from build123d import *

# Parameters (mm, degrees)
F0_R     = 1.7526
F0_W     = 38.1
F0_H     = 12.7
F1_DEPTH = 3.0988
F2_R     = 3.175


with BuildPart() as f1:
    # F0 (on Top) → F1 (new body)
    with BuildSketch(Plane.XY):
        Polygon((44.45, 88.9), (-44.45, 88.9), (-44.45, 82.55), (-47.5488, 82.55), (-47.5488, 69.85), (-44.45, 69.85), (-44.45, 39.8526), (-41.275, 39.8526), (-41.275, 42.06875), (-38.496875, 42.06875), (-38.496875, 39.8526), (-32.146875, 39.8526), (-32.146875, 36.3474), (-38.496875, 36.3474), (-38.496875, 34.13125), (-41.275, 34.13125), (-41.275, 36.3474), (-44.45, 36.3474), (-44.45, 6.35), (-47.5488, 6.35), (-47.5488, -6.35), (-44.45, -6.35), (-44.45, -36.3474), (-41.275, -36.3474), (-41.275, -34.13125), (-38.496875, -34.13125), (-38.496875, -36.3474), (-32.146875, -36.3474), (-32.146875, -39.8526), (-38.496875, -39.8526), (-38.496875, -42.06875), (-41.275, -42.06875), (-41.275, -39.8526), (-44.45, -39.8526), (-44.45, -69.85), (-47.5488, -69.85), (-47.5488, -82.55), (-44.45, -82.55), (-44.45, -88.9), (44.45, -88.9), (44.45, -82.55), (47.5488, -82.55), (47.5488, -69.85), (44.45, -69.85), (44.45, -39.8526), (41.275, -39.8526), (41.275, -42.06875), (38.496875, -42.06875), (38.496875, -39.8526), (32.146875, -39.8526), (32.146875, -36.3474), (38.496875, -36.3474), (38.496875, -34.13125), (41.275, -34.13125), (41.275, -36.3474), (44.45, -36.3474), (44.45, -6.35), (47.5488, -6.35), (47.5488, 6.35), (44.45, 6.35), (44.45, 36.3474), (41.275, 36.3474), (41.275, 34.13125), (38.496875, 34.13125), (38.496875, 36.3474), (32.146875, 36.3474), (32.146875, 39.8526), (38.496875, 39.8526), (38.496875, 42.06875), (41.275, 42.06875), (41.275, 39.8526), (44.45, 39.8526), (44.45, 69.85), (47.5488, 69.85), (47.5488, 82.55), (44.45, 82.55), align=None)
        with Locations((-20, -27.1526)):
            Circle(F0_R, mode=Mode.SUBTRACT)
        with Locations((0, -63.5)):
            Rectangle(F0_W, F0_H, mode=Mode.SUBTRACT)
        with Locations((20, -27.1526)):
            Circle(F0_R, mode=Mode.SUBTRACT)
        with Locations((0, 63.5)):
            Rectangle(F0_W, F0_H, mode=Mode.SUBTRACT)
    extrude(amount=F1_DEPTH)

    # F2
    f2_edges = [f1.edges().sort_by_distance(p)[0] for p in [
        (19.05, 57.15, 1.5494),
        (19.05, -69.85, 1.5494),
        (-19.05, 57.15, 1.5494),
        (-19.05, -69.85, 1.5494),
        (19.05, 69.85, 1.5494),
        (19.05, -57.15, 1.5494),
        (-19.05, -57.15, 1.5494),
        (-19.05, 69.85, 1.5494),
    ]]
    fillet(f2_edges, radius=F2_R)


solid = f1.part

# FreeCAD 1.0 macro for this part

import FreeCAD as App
import Part
import Sketcher
from FreeCAD import Vector
Q = App.Units.Quantity


def edges_at(feature, points):
    """Names of the edges that pass closest to the given points."""
    edges = feature.Shape.Edges
    near = lambda p: min(range(len(edges)), key=lambda i: edges[i].distToShape(Part.Vertex(*p))[0])
    return sorted({f"Edge{near(p) + 1}" for p in points})


def add_polygon(sketch, points):
    """Adds a closed chain of lines whose ends are joined by coincident constraints."""
    first, n = sketch.GeometryCount, len(points)
    for a, b in zip(points, points[1:] + points[:1]):
        sketch.addGeometry(Part.LineSegment(App.Vector(*a, 0), App.Vector(*b, 0)), False)
    for i in range(n):
        sketch.addConstraint(Sketcher.Constraint("Coincident", first + i, 2, first + (i + 1) % n, 1))

doc = App.newDocument("Part")
body = doc.addObject("PartDesign::Body", "Body")

# Sketch on XY plane
sketch1 = body.newObject("Sketcher::SketchObject", "Sketch")
sketch1.AttachmentSupport = (doc.getObject("XY_Plane"), [""])
sketch1.MapMode = "FlatFace"
add_polygon(sketch1, [(44.5, 88.9), (-44.5, 88.9), (-44.5, 82.5), (-47.5, 82.5), (-47.5, 69.8), (-44.5, 69.8), (-44.5, 39.9), (-41.3, 39.9), (-41.3, 42.1), (-38.5, 42.1), (-38.5, 39.9), (-32.1, 39.9), (-32.1, 36.3), (-38.5, 36.3), (-38.5, 34.1), (-41.3, 34.1), (-41.3, 36.3), (-44.5, 36.3), (-44.5, 6.3), (-47.5, 6.3), (-47.5, -6.3), (-44.5, -6.3), (-44.5, -36.3), (-41.3, -36.3), (-41.3, -34.1), (-38.5, -34.1), (-38.5, -36.3), (-32.1, -36.3), (-32.1, -39.9), (-38.5, -39.9), (-38.5, -42.1), (-41.3, -42.1), (-41.3, -39.9), (-44.5, -39.9), (-44.5, -69.8), (-47.5, -69.8), (-47.5, -82.5), (-44.5, -82.5), (-44.5, -88.9), (44.5, -88.9), (44.5, -82.5), (47.5, -82.5), (47.5, -69.8), (44.5, -69.8), (44.5, -39.9), (41.3, -39.9), (41.3, -42.1), (38.5, -42.1), (38.5, -39.9), (32.1, -39.9), (32.1, -36.3), (38.5, -36.3), (38.5, -34.1), (41.3, -34.1), (41.3, -36.3), (44.5, -36.3), (44.5, -6.3), (47.5, -6.3), (47.5, 6.3), (44.5, 6.3), (44.5, 36.3), (41.3, 36.3), (41.3, 34.1), (38.5, 34.1), (38.5, 36.3), (32.1, 36.3), (32.1, 39.9), (38.5, 39.9), (38.5, 42.1), (41.3, 42.1), (41.3, 39.9), (44.5, 39.9), (44.5, 69.8), (47.5, 69.8), (47.5, 82.5), (44.5, 82.5)])  # lines 0-75
sketch1.addGeometry(Part.Circle(Vector(-20, -27.2, 0), Vector(0, 0, 1), 1.8), False)  # 76
add_polygon(sketch1, [(19.1, -69.8), (-19.1, -69.8), (-19.1, -57.1), (19.1, -57.1)])  # lines 77-80
sketch1.addGeometry(Part.Circle(Vector(20, -27.2, 0), Vector(0, 0, 1), 1.8), False)  # 81
add_polygon(sketch1, [(19.1, 57.1), (-19.1, 57.1), (-19.1, 69.8), (19.1, 69.8)])  # lines 82-85
sketch1.addConstraint([
    Sketcher.Constraint("Horizontal", 0),
    Sketcher.Constraint("Vertical", 1),
    Sketcher.Constraint("Horizontal", 2),
    Sketcher.Constraint("Vertical", 3),
    Sketcher.Constraint("Horizontal", 4),
    Sketcher.Constraint("Vertical", 5),
    Sketcher.Constraint("Horizontal", 6),
    Sketcher.Constraint("Vertical", 7),
    Sketcher.Constraint("Horizontal", 8),
    Sketcher.Constraint("Vertical", 9),
    Sketcher.Constraint("Horizontal", 10),
    Sketcher.Constraint("Vertical", 11),
    Sketcher.Constraint("Horizontal", 12),
    Sketcher.Constraint("Vertical", 13),
    Sketcher.Constraint("Horizontal", 14),
    Sketcher.Constraint("Vertical", 15),
    Sketcher.Constraint("Horizontal", 16),
    Sketcher.Constraint("Vertical", 17),
    Sketcher.Constraint("Horizontal", 18),
    Sketcher.Constraint("Vertical", 19),
    Sketcher.Constraint("Horizontal", 20),
    Sketcher.Constraint("Vertical", 21),
    Sketcher.Constraint("Horizontal", 22),
    Sketcher.Constraint("Vertical", 23),
    Sketcher.Constraint("Horizontal", 24),
    Sketcher.Constraint("Vertical", 25),
    Sketcher.Constraint("Horizontal", 26),
    Sketcher.Constraint("Vertical", 27),
    Sketcher.Constraint("Horizontal", 28),
    Sketcher.Constraint("Vertical", 29),
    Sketcher.Constraint("Horizontal", 30),
    Sketcher.Constraint("Vertical", 31),
    Sketcher.Constraint("Horizontal", 32),
    Sketcher.Constraint("Vertical", 33),
    Sketcher.Constraint("Horizontal", 34),
    Sketcher.Constraint("Vertical", 35),
    Sketcher.Constraint("Horizontal", 36),
    Sketcher.Constraint("Vertical", 37),
    Sketcher.Constraint("Horizontal", 38),
    Sketcher.Constraint("Vertical", 39),
    Sketcher.Constraint("Horizontal", 40),
    Sketcher.Constraint("Vertical", 41),
    Sketcher.Constraint("Horizontal", 42),
    Sketcher.Constraint("Vertical", 43),
    Sketcher.Constraint("Horizontal", 44),
    Sketcher.Constraint("Vertical", 45),
    Sketcher.Constraint("Horizontal", 46),
    Sketcher.Constraint("Vertical", 47),
    Sketcher.Constraint("Horizontal", 48),
    Sketcher.Constraint("Vertical", 49),
    Sketcher.Constraint("Horizontal", 50),
    Sketcher.Constraint("Vertical", 51),
    Sketcher.Constraint("Horizontal", 52),
    Sketcher.Constraint("Vertical", 53),
    Sketcher.Constraint("Horizontal", 54),
    Sketcher.Constraint("Vertical", 55),
    Sketcher.Constraint("Horizontal", 56),
    Sketcher.Constraint("Vertical", 57),
    Sketcher.Constraint("Horizontal", 58),
    Sketcher.Constraint("Vertical", 59),
    Sketcher.Constraint("Horizontal", 60),
    Sketcher.Constraint("Vertical", 61),
    Sketcher.Constraint("Horizontal", 62),
    Sketcher.Constraint("Vertical", 63),
    Sketcher.Constraint("Horizontal", 64),
    Sketcher.Constraint("Vertical", 65),
    Sketcher.Constraint("Horizontal", 66),
    Sketcher.Constraint("Vertical", 67),
    Sketcher.Constraint("Horizontal", 68),
    Sketcher.Constraint("Vertical", 69),
    Sketcher.Constraint("Horizontal", 70),
    Sketcher.Constraint("Vertical", 71),
    Sketcher.Constraint("Horizontal", 72),
    Sketcher.Constraint("Vertical", 73),
    Sketcher.Constraint("Horizontal", 74),
    Sketcher.Constraint("Vertical", 75),
    Sketcher.Constraint("Horizontal", 77),
    Sketcher.Constraint("Vertical", 78),
    Sketcher.Constraint("Horizontal", 79),
    Sketcher.Constraint("Vertical", 80),
    Sketcher.Constraint("Horizontal", 82),
    Sketcher.Constraint("Vertical", 83),
    Sketcher.Constraint("Horizontal", 84),
    Sketcher.Constraint("Vertical", 85),
    Sketcher.Constraint("Equal", 76, 81),
    Sketcher.Constraint("Symmetric", 0, 2, 38, 2, -1, 1),
    Sketcher.Constraint("Symmetric", 2, 2, 40, 2, -1, 1),
    Sketcher.Constraint("Symmetric", 4, 2, 42, 2, -1, 1),
    Sketcher.Constraint("Symmetric", 6, 2, 44, 2, -1, 1),
    Sketcher.Constraint("Symmetric", 8, 2, 46, 2, -1, 1),
    Sketcher.Constraint("Symmetric", 10, 2, 48, 2, -1, 1),
    Sketcher.Constraint("Symmetric", 12, 2, 50, 2, -1, 1),
    Sketcher.Constraint("Symmetric", 14, 2, 52, 2, -1, 1),
    Sketcher.Constraint("Symmetric", 16, 2, 54, 2, -1, 1),
    Sketcher.Constraint("Symmetric", 18, 2, 56, 2, -1, 1),
    Sketcher.Constraint("Symmetric", 20, 2, 58, 2, -1, 1),
    Sketcher.Constraint("Symmetric", 22, 2, 60, 2, -1, 1),
    Sketcher.Constraint("Symmetric", 24, 2, 62, 2, -1, 1),
    Sketcher.Constraint("Symmetric", 26, 2, 64, 2, -1, 1),
    Sketcher.Constraint("Symmetric", 28, 2, 66, 2, -1, 1),
    Sketcher.Constraint("Symmetric", 30, 2, 68, 2, -1, 1),
    Sketcher.Constraint("Symmetric", 32, 2, 70, 2, -1, 1),
    Sketcher.Constraint("Symmetric", 34, 2, 72, 2, -1, 1),
    Sketcher.Constraint("Symmetric", 36, 2, 74, 2, -1, 1),
    Sketcher.Constraint("Symmetric", 79, 2, 82, 2, -1, 1),
    Sketcher.Constraint("Symmetric", 77, 2, 84, 2, -1, 1),
    Sketcher.Constraint("Symmetric", 76, 3, 81, 3, -2),
    Sketcher.Constraint("Symmetric", 36, 2, 39, 2, -2),
    Sketcher.Constraint("Symmetric", 34, 2, 41, 2, -2),
    Sketcher.Constraint("Symmetric", 32, 2, 43, 2, -2),
    Sketcher.Constraint("Symmetric", 30, 2, 45, 2, -2),
    Sketcher.Constraint("Symmetric", 28, 2, 47, 2, -2),
    Sketcher.Constraint("Symmetric", 26, 2, 49, 2, -2),
    Sketcher.Constraint("Symmetric", 24, 2, 51, 2, -2),
    Sketcher.Constraint("Symmetric", 22, 2, 53, 2, -2),
    Sketcher.Constraint("Symmetric", 20, 2, 55, 2, -2),
    Sketcher.Constraint("Horizontal", 6, 2, 9, 2),
    Sketcher.Constraint("Horizontal", 12, 2, 15, 2),
    Sketcher.Constraint("Horizontal", 42, 2, 77, 2),
    Sketcher.Constraint("Vertical", 1, 2, 4, 2),
    Sketcher.Constraint("Vertical", 9, 2, 12, 2),
    Sketcher.Constraint("Vertical", 7, 2, 14, 2),
    Sketcher.Constraint("Vertical", 5, 2, 16, 2),
    Sketcher.Constraint("Vertical", 3, 2, 18, 2),
    Sketcher.Constraint("Vertical", 78, 2, 82, 2),
    Sketcher.Constraint("Equal", 66, 1),
    Sketcher.Constraint("Equal", 9, 13),
    Sketcher.Constraint("Equal", 5, 17),
    Sketcher.Constraint("Equal", 3, 19),
    Sketcher.Constraint("Equal", 73, 78),
    Sketcher.Constraint("Diameter", 76, Q("0.138 in")),
    Sketcher.Constraint("DistanceX", 0, 2, 0, 1, Q("3.5 in")),
    Sketcher.Constraint("DistanceX", 77, 2, 77, 1, Q("1.5 in")),
    Sketcher.Constraint("DistanceY", 3, 2, 3, 1, Q("0.5 in")),
    Sketcher.Constraint("DistanceX", 10, 1, 10, 2, Q("0.25 in")),
    Sketcher.Constraint("DistanceY", -1, 1, 0, 2, Q("3.5 in")),
    Sketcher.Constraint("DistanceX", 2, 2, 2, 1, Q("0.122 in")),
    Sketcher.Constraint("DistanceX", 6, 1, 6, 2, Q("0.125 in")),
    Sketcher.Constraint("DistanceX", 8, 1, 8, 2, Q("0.109375 in")),
    Sketcher.Constraint("DistanceY", 5, 2, 5, 1, Q("1.181 in")),
    Sketcher.Constraint("DistanceY", 76, 3, -1, 1, Q("1.069 in")),
    Sketcher.Constraint("DistanceY", -1, 1, 7, 2, Q("1.65625 in")),
    Sketcher.Constraint("DistanceX", 76, 3, -1, 1, 20.0),
])
pad1 = body.newObject("PartDesign::Pad", "Pad")
pad1.Profile = sketch1
pad1.Length = Q("0.122 in")
doc.recompute()

fillet = body.newObject("PartDesign::Fillet", "Fillet")
fillet.Base = (pad1, edges_at(pad1, [
    (19.05, 57.15, 1.549),
    (19.05, -69.85, 1.549),
    (-19.05, 57.15, 1.549),
    (-19.05, -69.85, 1.549),
    (19.05, 69.85, 1.549),
    (19.05, -57.15, 1.549),
    (-19.05, -57.15, 1.549),
    (-19.05, 69.85, 1.549),
]))
fillet.Radius = Q("0.125 in")

doc.recompute()
